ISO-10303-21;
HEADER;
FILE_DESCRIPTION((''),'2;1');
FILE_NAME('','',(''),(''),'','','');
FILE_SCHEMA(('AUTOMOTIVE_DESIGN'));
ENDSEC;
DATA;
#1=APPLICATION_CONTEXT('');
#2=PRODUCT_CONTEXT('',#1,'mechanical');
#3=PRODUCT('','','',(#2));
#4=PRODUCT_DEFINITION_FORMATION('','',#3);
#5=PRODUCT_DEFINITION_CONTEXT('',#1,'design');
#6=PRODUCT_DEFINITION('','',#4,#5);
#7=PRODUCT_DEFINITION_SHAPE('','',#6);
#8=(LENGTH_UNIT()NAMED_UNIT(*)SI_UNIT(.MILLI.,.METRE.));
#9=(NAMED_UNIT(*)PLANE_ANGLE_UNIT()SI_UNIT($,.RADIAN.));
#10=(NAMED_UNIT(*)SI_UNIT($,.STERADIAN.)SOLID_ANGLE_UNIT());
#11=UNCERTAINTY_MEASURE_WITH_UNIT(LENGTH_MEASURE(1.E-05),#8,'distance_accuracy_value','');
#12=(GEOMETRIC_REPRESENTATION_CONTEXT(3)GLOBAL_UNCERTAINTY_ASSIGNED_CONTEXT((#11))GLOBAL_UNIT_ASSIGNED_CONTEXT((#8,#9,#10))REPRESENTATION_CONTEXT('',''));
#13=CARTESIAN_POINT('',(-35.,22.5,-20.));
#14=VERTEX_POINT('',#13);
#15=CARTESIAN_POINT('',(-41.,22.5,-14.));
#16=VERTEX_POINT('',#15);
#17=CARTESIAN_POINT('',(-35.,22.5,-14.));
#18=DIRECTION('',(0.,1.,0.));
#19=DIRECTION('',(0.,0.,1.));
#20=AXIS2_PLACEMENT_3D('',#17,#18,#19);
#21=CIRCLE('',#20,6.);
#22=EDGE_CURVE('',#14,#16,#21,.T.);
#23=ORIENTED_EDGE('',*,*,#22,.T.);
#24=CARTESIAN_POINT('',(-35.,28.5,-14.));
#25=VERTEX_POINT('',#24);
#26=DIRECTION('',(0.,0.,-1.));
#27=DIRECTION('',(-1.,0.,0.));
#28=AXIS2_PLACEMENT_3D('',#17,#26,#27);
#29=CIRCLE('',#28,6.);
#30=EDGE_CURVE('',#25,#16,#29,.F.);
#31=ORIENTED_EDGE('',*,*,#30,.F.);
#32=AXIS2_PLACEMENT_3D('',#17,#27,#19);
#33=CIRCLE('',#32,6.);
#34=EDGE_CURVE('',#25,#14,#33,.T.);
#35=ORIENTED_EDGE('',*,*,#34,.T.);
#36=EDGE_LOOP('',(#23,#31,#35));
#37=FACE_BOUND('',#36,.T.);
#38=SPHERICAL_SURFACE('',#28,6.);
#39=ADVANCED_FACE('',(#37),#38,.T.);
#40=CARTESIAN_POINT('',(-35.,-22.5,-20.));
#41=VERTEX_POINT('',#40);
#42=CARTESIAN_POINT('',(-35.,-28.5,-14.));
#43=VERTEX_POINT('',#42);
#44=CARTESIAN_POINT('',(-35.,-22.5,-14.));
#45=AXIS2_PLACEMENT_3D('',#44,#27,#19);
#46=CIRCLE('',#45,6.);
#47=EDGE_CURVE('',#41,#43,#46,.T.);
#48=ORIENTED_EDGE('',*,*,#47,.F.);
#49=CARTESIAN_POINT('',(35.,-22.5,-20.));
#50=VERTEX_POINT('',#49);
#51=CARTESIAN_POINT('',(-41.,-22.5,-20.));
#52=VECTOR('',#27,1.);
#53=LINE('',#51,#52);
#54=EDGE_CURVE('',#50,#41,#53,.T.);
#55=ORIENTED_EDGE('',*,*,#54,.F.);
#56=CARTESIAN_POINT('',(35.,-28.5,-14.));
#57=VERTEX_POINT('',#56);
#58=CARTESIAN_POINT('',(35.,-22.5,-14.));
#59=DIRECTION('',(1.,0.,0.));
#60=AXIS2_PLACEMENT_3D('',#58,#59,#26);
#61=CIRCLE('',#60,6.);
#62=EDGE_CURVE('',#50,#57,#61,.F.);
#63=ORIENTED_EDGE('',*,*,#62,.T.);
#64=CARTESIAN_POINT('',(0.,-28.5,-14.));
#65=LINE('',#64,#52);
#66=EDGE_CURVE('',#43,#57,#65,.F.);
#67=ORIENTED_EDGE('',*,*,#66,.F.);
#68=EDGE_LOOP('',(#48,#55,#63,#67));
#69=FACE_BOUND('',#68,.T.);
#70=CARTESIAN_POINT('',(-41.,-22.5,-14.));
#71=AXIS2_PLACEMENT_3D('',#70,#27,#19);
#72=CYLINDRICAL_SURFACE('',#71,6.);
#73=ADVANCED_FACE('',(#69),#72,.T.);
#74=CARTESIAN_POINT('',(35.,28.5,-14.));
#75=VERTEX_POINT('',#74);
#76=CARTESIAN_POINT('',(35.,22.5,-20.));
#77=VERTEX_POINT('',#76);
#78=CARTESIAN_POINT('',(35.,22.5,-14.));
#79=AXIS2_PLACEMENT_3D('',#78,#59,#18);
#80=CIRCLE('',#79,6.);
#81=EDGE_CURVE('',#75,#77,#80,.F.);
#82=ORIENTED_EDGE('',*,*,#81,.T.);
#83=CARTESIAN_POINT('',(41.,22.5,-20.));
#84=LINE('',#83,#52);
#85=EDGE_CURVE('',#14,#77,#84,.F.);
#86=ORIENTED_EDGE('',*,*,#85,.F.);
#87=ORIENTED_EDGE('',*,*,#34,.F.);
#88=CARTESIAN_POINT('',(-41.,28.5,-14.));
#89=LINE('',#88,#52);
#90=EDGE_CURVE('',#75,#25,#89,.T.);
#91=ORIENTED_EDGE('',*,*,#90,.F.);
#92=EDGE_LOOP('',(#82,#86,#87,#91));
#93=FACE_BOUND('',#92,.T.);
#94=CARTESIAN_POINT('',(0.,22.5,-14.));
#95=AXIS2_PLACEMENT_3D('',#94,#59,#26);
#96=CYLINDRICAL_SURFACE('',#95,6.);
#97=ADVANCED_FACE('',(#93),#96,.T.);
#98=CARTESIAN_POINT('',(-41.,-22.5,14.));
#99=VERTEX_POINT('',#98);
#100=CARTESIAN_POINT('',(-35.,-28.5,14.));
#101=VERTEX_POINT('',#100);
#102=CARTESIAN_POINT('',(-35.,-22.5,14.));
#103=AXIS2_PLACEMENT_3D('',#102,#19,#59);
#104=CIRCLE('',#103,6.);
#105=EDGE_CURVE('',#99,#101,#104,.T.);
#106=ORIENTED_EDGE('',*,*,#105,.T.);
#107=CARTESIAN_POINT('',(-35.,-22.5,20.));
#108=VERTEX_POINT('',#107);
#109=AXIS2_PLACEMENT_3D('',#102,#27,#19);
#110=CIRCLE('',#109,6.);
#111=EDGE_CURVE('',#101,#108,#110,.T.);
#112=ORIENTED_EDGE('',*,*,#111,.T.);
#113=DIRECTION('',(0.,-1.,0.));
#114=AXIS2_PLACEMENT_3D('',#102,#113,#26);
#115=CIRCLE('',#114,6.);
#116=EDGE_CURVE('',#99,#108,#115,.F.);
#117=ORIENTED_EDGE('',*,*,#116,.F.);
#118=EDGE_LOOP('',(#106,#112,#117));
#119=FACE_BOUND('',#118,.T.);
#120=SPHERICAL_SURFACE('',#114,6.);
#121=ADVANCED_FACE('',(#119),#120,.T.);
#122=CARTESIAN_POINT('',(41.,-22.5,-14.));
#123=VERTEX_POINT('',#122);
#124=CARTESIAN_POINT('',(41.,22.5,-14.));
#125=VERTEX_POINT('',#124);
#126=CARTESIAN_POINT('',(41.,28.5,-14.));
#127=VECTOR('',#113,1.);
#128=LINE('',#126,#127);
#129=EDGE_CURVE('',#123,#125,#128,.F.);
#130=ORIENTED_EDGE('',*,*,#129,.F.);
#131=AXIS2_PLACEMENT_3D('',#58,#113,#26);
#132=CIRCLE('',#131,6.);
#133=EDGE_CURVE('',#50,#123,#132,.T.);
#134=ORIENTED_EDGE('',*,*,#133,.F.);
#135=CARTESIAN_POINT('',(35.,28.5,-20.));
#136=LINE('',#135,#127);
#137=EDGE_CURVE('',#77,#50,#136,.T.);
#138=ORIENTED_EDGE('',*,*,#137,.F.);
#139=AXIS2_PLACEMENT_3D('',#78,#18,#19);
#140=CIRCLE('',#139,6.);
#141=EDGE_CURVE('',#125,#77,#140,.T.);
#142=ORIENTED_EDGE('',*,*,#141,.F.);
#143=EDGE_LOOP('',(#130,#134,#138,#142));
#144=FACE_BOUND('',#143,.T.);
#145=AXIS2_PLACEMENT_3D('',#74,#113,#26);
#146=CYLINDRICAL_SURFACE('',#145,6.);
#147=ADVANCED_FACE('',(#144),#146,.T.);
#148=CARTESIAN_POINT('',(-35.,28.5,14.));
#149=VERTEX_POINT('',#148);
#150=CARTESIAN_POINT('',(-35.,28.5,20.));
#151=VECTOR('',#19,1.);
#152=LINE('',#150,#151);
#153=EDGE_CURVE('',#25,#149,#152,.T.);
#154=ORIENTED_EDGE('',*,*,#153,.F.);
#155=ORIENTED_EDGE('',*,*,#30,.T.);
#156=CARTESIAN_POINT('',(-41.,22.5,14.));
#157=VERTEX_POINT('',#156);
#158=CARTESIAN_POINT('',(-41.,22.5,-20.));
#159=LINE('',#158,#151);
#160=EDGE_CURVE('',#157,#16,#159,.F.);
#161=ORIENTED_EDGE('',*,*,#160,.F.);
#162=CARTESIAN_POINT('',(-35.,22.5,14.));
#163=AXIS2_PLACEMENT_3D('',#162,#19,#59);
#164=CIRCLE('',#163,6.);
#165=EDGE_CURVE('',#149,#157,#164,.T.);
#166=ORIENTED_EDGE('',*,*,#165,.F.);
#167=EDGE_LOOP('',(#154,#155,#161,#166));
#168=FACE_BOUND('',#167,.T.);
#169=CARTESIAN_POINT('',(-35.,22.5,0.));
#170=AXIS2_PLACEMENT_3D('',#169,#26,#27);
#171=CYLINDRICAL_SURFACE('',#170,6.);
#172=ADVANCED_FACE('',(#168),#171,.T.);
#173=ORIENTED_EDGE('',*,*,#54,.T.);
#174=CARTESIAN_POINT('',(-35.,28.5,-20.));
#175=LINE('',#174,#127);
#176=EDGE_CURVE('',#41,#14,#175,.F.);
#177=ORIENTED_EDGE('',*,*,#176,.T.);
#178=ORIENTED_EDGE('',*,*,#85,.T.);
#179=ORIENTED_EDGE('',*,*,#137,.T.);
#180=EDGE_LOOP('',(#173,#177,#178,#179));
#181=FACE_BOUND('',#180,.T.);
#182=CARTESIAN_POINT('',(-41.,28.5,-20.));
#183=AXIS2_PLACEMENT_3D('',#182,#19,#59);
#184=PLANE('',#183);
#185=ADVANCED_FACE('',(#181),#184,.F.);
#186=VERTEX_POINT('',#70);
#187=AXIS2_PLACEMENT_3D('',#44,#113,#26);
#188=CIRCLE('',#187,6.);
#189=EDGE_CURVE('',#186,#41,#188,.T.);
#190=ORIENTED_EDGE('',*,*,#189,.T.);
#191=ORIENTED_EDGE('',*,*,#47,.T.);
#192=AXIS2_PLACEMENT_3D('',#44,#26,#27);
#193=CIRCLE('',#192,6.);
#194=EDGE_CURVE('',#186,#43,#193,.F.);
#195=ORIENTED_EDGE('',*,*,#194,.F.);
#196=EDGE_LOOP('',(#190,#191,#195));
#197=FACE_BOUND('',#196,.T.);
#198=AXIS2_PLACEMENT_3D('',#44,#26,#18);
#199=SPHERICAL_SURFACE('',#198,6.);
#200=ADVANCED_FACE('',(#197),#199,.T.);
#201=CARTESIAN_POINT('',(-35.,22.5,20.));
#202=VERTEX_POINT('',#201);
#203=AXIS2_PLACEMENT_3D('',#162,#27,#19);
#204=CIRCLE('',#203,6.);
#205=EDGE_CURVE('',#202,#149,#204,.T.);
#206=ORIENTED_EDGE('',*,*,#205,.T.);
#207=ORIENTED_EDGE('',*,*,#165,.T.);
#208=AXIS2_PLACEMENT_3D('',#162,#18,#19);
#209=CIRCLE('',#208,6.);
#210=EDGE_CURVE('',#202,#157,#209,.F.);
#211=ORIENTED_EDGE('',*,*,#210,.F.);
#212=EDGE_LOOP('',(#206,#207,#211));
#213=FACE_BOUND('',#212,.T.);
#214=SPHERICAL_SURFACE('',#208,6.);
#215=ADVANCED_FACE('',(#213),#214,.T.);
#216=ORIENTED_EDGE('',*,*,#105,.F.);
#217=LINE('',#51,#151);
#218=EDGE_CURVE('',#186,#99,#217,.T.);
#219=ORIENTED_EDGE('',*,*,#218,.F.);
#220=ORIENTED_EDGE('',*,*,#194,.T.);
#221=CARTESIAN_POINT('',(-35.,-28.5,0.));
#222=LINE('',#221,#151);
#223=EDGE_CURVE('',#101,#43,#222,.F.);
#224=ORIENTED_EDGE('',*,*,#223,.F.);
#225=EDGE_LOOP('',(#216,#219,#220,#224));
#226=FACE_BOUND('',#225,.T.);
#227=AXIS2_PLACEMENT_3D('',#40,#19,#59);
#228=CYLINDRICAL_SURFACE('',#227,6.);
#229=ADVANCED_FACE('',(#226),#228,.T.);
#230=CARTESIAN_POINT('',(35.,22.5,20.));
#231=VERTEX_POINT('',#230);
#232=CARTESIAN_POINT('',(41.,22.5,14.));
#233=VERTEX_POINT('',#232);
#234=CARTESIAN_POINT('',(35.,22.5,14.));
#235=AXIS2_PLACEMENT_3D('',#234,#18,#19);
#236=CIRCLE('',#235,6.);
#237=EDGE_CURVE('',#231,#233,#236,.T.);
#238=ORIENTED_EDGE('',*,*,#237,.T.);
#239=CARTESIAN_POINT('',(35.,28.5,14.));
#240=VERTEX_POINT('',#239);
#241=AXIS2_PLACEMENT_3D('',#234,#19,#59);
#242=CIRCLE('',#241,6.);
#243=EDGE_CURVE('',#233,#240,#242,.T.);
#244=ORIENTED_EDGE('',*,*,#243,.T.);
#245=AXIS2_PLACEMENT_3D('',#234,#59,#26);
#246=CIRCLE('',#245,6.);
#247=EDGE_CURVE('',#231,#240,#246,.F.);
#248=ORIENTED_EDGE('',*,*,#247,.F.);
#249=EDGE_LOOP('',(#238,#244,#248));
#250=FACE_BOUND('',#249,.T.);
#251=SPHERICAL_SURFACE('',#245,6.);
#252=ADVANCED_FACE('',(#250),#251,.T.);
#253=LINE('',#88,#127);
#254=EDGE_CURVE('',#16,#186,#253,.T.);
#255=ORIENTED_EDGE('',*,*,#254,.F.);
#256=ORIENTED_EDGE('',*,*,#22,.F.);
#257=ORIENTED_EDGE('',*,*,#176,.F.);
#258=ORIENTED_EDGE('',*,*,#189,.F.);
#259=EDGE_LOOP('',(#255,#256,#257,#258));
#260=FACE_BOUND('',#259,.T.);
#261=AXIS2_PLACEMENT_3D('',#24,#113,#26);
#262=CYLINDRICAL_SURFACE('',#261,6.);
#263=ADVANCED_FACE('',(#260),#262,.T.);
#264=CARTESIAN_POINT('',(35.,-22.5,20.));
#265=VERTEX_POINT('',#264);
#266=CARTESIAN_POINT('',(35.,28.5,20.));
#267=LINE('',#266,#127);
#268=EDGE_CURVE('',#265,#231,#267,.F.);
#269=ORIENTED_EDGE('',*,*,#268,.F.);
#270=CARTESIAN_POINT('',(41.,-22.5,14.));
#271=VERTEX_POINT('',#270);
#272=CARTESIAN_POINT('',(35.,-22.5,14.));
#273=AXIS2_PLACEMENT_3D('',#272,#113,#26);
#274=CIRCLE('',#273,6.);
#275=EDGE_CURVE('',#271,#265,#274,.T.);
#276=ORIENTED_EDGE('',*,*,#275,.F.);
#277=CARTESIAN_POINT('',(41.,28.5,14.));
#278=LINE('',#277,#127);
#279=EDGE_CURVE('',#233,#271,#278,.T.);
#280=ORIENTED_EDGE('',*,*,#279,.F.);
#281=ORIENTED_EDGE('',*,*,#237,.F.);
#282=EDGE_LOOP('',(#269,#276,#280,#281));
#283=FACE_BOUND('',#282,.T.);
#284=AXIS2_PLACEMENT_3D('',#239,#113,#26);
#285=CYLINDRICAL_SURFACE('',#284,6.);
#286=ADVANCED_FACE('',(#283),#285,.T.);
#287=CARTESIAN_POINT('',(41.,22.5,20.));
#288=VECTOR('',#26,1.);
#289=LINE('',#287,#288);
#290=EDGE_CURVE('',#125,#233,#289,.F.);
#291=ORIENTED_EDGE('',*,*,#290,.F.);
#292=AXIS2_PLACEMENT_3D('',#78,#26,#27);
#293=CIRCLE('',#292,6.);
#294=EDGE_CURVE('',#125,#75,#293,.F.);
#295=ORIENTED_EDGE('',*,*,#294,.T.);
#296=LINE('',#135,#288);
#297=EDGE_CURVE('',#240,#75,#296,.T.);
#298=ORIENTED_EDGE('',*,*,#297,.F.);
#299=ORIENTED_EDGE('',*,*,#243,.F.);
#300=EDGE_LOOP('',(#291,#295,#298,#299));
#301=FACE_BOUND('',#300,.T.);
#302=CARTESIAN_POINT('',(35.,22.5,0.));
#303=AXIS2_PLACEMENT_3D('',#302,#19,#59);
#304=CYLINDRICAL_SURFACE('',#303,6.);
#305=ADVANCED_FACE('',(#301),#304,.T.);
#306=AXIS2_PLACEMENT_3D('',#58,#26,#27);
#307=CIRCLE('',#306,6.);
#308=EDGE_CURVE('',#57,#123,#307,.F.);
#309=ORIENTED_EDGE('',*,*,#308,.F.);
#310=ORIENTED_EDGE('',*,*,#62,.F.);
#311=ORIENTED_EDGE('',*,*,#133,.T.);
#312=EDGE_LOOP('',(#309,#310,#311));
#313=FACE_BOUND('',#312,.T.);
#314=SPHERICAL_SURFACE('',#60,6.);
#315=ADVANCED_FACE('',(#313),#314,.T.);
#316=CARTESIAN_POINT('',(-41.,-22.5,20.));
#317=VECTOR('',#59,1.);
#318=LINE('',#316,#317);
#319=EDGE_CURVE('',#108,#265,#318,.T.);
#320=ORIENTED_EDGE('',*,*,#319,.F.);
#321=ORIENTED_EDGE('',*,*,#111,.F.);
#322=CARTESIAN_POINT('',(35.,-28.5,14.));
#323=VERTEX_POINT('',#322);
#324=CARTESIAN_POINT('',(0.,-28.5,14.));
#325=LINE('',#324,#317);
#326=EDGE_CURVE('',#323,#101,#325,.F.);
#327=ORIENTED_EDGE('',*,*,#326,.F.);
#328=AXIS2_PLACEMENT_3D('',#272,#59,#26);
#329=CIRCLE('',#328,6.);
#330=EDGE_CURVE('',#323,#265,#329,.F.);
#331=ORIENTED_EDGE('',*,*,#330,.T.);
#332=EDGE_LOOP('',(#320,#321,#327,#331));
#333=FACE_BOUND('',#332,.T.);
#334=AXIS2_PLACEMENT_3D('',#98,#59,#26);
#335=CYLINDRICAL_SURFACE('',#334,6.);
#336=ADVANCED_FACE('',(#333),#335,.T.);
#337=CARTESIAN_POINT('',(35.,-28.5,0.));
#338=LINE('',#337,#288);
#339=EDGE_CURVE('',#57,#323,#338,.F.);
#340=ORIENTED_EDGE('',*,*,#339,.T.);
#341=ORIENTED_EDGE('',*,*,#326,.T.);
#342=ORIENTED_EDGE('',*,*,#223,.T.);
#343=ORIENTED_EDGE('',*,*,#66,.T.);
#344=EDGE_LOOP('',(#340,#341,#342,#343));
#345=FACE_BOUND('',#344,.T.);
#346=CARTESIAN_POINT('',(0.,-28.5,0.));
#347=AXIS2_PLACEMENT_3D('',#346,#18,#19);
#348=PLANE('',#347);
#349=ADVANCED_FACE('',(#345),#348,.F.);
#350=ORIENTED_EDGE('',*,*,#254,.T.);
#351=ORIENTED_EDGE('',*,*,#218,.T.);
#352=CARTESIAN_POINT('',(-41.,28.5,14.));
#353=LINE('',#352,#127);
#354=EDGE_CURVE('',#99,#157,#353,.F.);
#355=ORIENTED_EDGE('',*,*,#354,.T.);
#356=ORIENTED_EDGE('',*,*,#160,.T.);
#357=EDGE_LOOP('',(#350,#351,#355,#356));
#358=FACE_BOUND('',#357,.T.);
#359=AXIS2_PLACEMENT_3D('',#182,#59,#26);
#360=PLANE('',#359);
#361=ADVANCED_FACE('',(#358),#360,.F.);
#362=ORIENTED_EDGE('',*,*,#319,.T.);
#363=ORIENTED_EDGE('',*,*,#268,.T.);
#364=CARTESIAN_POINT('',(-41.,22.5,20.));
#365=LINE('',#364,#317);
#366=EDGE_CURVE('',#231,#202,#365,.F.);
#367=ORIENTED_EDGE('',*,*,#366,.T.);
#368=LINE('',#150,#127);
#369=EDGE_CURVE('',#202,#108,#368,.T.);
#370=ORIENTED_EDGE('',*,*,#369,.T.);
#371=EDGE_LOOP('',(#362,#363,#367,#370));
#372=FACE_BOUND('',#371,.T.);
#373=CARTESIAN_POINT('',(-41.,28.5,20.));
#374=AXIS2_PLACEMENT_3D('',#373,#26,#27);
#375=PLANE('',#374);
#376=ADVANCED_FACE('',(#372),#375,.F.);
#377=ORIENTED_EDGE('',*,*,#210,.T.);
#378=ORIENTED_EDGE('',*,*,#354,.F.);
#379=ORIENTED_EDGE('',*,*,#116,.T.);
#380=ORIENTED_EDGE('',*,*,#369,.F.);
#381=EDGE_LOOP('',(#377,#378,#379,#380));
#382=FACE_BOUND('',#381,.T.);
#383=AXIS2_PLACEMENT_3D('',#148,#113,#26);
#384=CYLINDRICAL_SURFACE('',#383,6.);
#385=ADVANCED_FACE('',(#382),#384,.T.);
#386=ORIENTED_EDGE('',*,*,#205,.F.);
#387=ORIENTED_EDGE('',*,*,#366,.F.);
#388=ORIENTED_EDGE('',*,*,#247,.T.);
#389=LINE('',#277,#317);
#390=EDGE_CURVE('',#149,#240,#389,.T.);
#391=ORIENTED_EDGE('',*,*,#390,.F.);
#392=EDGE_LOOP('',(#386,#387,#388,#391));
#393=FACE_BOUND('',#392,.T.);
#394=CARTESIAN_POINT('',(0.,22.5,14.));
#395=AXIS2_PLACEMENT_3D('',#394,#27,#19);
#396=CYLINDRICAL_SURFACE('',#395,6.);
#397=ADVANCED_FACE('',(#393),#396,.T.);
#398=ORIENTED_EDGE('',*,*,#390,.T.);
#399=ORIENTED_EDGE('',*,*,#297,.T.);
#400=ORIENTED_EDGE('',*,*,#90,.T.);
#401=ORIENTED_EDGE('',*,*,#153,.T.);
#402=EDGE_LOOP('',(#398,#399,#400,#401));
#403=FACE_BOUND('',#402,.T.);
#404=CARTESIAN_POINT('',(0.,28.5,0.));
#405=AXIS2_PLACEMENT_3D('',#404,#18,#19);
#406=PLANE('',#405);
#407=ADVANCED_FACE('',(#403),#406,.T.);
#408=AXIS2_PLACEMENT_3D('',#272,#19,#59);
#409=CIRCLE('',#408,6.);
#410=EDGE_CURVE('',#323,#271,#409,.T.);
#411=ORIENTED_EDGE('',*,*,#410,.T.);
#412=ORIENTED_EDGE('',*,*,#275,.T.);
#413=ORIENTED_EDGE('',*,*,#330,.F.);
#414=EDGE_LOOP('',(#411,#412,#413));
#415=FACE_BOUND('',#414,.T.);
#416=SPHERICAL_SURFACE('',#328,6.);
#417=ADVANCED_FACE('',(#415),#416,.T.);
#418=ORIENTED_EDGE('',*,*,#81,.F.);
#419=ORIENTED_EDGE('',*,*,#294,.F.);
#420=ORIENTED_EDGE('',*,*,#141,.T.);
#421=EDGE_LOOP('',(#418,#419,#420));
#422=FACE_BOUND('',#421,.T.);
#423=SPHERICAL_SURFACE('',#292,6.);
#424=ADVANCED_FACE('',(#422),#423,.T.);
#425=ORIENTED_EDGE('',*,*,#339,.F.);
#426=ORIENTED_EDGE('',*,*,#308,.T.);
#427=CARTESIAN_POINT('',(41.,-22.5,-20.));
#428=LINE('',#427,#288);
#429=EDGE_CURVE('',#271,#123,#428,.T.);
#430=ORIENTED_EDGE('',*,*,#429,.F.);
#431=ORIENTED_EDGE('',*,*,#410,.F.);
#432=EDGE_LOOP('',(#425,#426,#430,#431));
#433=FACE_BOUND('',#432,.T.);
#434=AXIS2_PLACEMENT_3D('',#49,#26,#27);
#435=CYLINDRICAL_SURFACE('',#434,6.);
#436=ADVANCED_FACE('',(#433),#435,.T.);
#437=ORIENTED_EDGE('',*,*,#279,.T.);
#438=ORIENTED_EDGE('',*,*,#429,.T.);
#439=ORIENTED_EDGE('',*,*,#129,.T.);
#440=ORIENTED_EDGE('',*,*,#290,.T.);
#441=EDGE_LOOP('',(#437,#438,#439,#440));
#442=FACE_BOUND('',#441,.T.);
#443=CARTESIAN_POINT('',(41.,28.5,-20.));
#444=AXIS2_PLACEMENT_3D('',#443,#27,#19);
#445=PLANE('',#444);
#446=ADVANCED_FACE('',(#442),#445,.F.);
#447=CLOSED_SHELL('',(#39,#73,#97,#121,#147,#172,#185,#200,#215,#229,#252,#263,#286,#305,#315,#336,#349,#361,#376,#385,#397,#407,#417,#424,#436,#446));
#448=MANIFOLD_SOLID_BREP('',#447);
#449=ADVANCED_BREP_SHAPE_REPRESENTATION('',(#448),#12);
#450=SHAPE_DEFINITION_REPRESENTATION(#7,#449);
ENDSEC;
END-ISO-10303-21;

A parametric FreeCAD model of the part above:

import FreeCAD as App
import Part
import Sketcher
Q = App.Units.Quantity


def add_polygon(sketch, points):
    """Adds a closed chain of lines whose ends are joined by coincident constraints."""
    first, n = sketch.GeometryCount, len(points)
    for a, b in zip(points, points[1:] + points[:1]):
        sketch.addGeometry(Part.LineSegment(App.Vector(*a, 0), App.Vector(*b, 0)), False)
    for i in range(n):
        sketch.addConstraint(Sketcher.Constraint("Coincident", first + i, 2, first + (i + 1) % n, 1))

doc = App.newDocument("Part")
body = doc.addObject("PartDesign::Body", "Body")

sketch1 = doc.addObject("Sketcher::SketchObject", "Sketch")
body.addObject(sketch1)
sketch1.AttachmentSupport = (doc.XZ_Plane, [""])
sketch1.MapMode = "FlatFace"
add_polygon(sketch1, [(-41, -20), (-41, 20), (41, 20), (41, -20)])
sketch1.addConstraint(Sketcher.Constraint("Vertical", 0))
sketch1.addConstraint(Sketcher.Constraint("Horizontal", 1))
sketch1.addConstraint(Sketcher.Constraint("Vertical", 2))
sketch1.addConstraint(Sketcher.Constraint("Horizontal", 3))
sketch1.addConstraint(Sketcher.Constraint("Symmetric", 0, 2, 2, 2, -1, 1))
sketch1.addConstraint(Sketcher.Constraint("DistanceX", 1, 1, 1, 2, Q("82 mm")))
sketch1.addConstraint(Sketcher.Constraint("DistanceY", 0, 1, 0, 2, Q("40 mm")))
pad1 = doc.addObject("PartDesign::Pad", "Pad")
body.addObject(pad1)
pad1.Profile = sketch1
pad1.Length = 57
pad1.Midplane = True
doc.recompute()

fillet = doc.addObject("PartDesign::Fillet", "Fillet")
body.addObject(fillet)
fillet.Base = (pad1, ["Edge1"])
fillet.UseAllEdges = True
fillet.Radius = 6

doc.recompute()
